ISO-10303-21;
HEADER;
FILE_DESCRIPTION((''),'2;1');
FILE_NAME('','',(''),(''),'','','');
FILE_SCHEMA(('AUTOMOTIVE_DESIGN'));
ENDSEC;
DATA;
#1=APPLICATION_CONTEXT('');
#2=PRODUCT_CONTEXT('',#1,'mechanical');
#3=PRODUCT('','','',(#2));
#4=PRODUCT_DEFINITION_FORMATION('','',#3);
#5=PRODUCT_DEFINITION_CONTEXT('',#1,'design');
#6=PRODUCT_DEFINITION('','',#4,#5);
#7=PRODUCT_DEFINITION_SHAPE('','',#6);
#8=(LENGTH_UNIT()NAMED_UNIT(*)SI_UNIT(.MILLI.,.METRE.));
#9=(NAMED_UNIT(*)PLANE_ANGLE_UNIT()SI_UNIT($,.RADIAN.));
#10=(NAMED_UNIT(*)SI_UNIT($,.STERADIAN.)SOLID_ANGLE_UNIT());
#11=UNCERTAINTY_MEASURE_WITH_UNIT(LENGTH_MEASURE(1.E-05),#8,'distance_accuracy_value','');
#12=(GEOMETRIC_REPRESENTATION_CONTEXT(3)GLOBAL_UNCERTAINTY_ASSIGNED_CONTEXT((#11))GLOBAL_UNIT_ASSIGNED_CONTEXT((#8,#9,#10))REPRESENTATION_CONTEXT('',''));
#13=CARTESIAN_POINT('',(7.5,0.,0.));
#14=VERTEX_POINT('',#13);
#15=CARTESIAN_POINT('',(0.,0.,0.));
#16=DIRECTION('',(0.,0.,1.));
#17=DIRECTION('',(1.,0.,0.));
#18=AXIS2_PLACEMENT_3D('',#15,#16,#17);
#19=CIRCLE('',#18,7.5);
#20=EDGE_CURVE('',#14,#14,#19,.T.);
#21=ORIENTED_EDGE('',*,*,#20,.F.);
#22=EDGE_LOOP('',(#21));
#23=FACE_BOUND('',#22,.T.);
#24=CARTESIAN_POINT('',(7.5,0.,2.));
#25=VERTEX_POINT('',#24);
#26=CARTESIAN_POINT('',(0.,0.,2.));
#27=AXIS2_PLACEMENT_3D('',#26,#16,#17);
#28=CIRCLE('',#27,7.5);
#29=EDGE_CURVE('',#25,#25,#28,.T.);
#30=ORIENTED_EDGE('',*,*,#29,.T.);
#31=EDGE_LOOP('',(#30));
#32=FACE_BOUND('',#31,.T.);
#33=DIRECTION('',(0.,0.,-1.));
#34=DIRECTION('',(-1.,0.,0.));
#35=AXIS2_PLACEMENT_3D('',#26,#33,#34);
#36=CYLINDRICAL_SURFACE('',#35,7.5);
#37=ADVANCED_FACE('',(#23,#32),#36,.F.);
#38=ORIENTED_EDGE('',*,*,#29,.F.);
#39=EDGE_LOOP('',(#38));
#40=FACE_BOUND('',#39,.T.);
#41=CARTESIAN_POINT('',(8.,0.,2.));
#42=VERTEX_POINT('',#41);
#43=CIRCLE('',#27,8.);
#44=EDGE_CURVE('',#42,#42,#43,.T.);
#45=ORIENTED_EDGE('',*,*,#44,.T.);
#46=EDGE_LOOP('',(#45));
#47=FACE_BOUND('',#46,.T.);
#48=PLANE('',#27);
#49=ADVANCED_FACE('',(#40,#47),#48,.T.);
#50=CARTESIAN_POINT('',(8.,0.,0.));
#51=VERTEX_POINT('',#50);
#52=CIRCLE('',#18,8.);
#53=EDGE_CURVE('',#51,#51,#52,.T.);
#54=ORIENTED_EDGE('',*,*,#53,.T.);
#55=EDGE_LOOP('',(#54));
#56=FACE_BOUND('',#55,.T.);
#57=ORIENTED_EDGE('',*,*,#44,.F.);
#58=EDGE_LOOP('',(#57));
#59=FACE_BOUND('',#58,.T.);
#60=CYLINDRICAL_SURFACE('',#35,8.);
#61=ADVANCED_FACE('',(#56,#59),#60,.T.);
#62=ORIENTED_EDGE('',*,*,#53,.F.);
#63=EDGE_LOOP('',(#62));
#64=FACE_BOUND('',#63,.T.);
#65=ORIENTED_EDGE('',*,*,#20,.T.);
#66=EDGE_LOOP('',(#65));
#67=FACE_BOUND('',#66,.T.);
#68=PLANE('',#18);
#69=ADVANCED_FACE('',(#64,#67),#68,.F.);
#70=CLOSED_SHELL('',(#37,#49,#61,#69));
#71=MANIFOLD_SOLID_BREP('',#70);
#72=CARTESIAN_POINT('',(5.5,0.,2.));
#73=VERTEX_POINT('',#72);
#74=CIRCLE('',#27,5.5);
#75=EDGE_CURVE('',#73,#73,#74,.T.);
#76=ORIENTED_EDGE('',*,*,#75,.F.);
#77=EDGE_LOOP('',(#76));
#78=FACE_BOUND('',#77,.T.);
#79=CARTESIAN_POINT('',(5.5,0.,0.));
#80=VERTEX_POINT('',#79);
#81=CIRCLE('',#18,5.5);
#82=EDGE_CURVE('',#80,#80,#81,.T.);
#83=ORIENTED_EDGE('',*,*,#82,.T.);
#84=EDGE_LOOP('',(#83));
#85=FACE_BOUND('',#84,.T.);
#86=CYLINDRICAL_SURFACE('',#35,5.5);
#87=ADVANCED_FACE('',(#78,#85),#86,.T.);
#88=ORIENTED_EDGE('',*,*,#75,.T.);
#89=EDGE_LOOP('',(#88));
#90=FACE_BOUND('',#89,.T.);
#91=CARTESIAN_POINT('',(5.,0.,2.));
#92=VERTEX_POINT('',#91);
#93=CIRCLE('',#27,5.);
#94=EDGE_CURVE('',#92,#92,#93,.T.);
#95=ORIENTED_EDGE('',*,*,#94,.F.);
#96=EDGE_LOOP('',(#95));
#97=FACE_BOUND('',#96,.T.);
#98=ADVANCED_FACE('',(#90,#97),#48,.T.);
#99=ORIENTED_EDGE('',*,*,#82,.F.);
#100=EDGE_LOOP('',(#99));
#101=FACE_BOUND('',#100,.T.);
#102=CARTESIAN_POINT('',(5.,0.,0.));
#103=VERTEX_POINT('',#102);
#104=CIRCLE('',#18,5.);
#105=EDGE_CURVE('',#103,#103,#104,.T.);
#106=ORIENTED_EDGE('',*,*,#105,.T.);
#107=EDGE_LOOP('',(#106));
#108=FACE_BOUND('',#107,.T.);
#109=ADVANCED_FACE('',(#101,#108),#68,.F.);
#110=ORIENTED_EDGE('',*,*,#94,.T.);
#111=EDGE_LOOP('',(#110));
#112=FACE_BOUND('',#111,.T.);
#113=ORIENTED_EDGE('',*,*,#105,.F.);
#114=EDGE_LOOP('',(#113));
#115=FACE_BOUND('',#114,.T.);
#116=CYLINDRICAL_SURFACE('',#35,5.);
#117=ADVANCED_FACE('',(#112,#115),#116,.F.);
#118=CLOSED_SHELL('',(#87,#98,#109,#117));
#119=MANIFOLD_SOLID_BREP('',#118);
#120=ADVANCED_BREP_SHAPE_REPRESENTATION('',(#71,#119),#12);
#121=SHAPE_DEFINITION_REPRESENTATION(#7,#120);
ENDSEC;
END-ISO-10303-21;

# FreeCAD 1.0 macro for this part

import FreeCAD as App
import Part
import Sketcher

doc = App.newDocument("Part")
params = doc.addObject("Spreadsheet::Sheet", "Params")
for row, (alias, value) in enumerate([
    ("sketch1_diameter", "16 mm"),
    ("sketch1_diameter2", "15 mm"),
    ("pad1_length", "2 mm"),
    ("sketch2_diameter", "11 mm"),
    ("sketch2_diameter2", "10 mm"),
    ("pad2_length", "2 mm"),
], start=1):
    params.set(f"A{row}", alias)
    params.set(f"B{row}", "=" + value)
    params.setAlias(f"B{row}", alias)

body = doc.addObject("PartDesign::Body", "Body")

# Sketch on XY plane
sketch1 = body.newObject("Sketcher::SketchObject", "Sketch")
sketch1.AttachmentSupport = (doc.getObject("XY_Plane"), [""])
sketch1.MapMode = "FlatFace"
sketch1.addGeometry([
    Part.Circle(App.Vector(0, 0, 0), App.Vector(0, 0, 1), 8),
    Part.Circle(App.Vector(0, 0, 0), App.Vector(0, 0, 1), 8),
], False)
sketch1.addConstraint([
    Sketcher.Constraint("Coincident", 0, 3, -1, 1),
    Sketcher.Constraint("Coincident", 1, 3, -1, 1),
    Sketcher.Constraint("Diameter", 0, 16.0),
    Sketcher.Constraint("Diameter", 1, 15.0),
])
sketch1.setExpression("Constraints[2]", "Params.sketch1_diameter")
sketch1.setExpression("Constraints[3]", "Params.sketch1_diameter2")
pad1 = body.newObject("PartDesign::Pad", "Pad")
pad1.Profile = sketch1
pad1.setExpression("Length", "Params.pad1_length")
body2 = doc.addObject("PartDesign::Body", "Body001")

# Sketch on XY plane
sketch2 = body2.newObject("Sketcher::SketchObject", "Sketch001")
sketch2.AttachmentSupport = (doc.getObject("XY_Plane001"), [""])
sketch2.MapMode = "FlatFace"
sketch2.addGeometry([
    Part.Circle(App.Vector(0, 0, 0), App.Vector(0, 0, 1), 6),
    Part.Circle(App.Vector(0, 0, 0), App.Vector(0, 0, 1), 5),
], False)
sketch2.addConstraint([
    Sketcher.Constraint("Coincident", 0, 3, -1, 1),
    Sketcher.Constraint("Coincident", 1, 3, -1, 1),
    Sketcher.Constraint("Diameter", 0, 11.0),
    Sketcher.Constraint("Diameter", 1, 10.0),
])
sketch2.setExpression("Constraints[2]", "Params.sketch2_diameter")
sketch2.setExpression("Constraints[3]", "Params.sketch2_diameter2")
pad2 = body2.newObject("PartDesign::Pad", "Pad001")
pad2.Profile = sketch2
pad2.setExpression("Length", "Params.pad2_length")

doc.recompute()
